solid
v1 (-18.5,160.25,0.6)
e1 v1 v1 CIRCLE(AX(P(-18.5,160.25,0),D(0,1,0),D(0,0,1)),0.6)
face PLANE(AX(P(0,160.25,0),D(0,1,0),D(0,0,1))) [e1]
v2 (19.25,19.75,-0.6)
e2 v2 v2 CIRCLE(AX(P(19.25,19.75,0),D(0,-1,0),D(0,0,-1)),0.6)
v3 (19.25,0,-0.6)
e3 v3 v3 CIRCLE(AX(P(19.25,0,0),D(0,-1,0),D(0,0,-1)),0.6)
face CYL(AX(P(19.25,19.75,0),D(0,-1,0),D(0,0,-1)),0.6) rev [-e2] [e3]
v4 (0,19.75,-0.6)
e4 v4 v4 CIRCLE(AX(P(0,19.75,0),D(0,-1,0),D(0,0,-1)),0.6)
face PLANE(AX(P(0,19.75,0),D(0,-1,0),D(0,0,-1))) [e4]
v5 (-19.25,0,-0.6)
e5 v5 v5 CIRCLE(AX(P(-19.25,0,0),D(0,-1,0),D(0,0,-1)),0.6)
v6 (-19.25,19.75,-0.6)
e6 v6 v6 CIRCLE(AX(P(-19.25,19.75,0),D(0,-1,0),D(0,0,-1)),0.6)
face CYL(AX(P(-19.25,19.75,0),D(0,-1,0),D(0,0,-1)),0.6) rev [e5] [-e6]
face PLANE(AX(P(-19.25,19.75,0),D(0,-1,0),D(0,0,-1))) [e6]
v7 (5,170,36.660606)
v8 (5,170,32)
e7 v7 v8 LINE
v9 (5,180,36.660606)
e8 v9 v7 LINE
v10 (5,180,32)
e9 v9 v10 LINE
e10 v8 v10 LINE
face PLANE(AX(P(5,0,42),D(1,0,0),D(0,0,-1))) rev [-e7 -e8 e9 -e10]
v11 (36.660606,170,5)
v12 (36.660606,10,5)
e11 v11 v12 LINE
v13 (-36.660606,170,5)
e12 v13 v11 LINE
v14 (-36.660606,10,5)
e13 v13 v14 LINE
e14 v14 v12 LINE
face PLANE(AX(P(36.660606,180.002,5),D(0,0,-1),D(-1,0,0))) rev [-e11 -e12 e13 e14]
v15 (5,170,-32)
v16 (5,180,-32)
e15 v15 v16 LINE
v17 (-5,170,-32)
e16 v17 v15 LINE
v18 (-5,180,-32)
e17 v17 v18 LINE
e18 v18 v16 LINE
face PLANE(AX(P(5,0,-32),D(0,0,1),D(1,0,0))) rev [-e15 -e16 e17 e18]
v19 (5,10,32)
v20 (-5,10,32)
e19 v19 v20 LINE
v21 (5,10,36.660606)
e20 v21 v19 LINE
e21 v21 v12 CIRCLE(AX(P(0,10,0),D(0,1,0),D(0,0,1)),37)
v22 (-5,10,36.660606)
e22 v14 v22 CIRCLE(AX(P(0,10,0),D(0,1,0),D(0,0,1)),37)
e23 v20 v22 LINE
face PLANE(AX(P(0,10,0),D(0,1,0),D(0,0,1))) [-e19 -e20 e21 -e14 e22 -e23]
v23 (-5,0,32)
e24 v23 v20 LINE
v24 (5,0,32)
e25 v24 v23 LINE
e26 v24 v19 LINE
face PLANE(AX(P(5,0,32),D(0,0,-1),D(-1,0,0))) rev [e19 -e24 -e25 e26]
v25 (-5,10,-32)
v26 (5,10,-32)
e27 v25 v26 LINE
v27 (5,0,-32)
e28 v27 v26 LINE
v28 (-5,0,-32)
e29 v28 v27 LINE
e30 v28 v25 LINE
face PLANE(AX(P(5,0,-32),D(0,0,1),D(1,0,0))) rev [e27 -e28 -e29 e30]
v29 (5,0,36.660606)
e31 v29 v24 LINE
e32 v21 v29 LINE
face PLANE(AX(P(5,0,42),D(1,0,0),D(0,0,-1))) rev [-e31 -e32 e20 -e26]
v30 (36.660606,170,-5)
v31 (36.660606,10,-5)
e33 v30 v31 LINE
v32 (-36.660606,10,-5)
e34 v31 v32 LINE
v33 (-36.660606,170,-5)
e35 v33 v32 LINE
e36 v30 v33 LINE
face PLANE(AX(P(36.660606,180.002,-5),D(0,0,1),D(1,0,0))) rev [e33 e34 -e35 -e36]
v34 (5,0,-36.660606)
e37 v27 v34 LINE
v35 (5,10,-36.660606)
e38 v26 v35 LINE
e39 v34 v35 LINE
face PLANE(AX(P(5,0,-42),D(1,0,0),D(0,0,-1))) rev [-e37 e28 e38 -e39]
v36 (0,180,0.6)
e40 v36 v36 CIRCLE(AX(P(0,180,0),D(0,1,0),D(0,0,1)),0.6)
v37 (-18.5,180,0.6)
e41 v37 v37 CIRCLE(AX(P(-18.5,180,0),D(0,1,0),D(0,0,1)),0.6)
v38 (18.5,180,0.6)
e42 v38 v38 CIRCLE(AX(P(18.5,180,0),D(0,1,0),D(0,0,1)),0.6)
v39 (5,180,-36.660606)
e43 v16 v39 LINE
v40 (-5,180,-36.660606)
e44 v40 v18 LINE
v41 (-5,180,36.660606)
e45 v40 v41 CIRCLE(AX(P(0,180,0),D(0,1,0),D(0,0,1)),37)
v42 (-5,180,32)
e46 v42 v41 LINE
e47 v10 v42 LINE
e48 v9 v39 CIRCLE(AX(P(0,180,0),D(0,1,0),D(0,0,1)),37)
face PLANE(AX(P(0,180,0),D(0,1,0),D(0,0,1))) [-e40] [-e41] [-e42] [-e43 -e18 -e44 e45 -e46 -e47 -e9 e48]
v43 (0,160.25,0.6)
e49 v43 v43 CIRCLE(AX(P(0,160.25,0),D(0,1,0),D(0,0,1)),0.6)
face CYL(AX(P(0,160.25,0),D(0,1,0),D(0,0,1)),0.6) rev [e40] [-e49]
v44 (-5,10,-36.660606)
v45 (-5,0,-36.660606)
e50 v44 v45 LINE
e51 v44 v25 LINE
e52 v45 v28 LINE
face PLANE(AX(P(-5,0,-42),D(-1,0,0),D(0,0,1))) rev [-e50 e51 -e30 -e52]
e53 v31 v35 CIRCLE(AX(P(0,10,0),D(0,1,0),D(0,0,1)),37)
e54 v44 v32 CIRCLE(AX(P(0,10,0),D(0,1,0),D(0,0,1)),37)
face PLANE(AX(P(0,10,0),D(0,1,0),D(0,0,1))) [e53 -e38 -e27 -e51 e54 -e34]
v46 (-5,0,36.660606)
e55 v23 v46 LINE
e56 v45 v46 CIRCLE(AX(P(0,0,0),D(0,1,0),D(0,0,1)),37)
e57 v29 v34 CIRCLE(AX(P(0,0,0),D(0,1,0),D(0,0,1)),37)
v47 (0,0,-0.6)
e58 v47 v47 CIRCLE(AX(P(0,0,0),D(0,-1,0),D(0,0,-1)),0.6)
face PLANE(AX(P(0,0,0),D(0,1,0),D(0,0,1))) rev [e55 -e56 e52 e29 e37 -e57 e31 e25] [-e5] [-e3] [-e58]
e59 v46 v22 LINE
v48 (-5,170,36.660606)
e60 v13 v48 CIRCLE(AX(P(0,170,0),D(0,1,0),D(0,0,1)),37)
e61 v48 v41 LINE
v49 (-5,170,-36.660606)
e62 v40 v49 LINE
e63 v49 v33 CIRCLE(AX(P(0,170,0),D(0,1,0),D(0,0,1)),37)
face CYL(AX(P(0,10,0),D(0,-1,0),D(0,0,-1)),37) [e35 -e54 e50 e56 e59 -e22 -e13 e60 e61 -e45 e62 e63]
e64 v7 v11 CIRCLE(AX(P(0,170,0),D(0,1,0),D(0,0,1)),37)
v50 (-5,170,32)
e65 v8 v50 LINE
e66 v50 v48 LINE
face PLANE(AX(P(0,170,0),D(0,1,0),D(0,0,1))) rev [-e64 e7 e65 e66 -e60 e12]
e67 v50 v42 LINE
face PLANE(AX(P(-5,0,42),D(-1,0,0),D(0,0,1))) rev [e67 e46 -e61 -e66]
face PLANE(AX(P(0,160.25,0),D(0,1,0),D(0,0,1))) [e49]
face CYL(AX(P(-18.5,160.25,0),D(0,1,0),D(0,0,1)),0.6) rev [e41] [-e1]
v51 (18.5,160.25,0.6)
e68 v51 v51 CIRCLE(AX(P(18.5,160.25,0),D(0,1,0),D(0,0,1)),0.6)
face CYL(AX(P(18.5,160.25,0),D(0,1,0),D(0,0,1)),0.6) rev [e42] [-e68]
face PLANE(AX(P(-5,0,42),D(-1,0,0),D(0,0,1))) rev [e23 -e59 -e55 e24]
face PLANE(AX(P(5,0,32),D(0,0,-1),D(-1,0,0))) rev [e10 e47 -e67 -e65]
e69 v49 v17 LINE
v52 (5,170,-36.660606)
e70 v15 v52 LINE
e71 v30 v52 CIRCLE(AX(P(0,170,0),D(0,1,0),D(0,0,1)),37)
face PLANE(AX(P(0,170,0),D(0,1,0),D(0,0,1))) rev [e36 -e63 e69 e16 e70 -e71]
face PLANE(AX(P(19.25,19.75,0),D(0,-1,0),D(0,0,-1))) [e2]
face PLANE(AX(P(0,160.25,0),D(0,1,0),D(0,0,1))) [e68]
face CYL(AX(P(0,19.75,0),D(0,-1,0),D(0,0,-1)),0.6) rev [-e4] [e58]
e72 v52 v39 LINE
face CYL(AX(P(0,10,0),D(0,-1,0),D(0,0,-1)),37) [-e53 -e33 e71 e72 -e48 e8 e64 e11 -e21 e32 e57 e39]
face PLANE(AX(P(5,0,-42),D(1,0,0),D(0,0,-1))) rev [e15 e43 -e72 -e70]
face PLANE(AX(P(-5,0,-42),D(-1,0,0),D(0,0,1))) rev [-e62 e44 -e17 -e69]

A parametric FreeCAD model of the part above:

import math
import FreeCAD as App
import Part
import Sketcher

doc = App.newDocument("Part")
body = doc.addObject("PartDesign::Body", "Body")

sketch1 = body.newObject("Sketcher::SketchObject", "Sketch")
sketch1.AttachmentSupport = (doc.getObject("XZ_Plane"), [""])
sketch1.MapMode = "FlatFace"
sketch1.addGeometry(Part.Circle(App.Vector(0, 0, 0), App.Vector(0, 0, 1), 37), False)
sketch1.addConstraint([
    Sketcher.Constraint("Coincident", 0, 3, -1, 1),
    Sketcher.Constraint("Diameter", 0, 74.0),
])
pad1 = body.newObject("PartDesign::Pad", "Pad")
pad1.Profile = sketch1
pad1.Length = 10
pad1.Reversed = True
body2 = doc.addObject("PartDesign::Body", "Body001")
body2.AllowCompound = True

sketch2 = body2.newObject("Sketcher::SketchObject", "Sketch001")
sketch2.AttachmentSupport = (doc.getObject("XZ_Plane001"), [""])
sketch2.MapMode = "FlatFace"
sketch2.AttachmentOffset = App.Placement(App.Vector(0, 0, -180), App.Rotation())
sketch2.addGeometry(Part.Circle(App.Vector(0, 0, 0), App.Vector(0, 0, 1), 37), False)
sketch2.addConstraint([
    Sketcher.Constraint("Coincident", 0, 3, -1, 1),
    Sketcher.Constraint("Diameter", 0, 74.0),
])
pad2 = body2.newObject("PartDesign::Pad", "Pad001")
pad2.Profile = sketch2
pad2.Length = 10
doc.recompute()

boolean = body2.newObject("PartDesign::Boolean", "Boolean")
boolean.Type = "Fuse"
boolean.addObjects([body])

sketch3 = body2.newObject("Sketcher::SketchObject", "Sketch002")
sketch3.AttachmentSupport = (doc.getObject("XZ_Plane001"), [""])
sketch3.MapMode = "FlatFace"
sketch3.AttachmentOffset = App.Placement(App.Vector(0, 0, -10), App.Rotation())
sketch3.addGeometry([
    Part.LineSegment(App.Vector(37, -5, 0), App.Vector(-37, -5, 0)),
    Part.ArcOfCircle(Part.Circle(App.Vector(0, 0, 0), App.Vector(0, 0, 1), 37), math.radians(172.23), math.radians(187.77)),
    Part.LineSegment(App.Vector(-37, 5, 0), App.Vector(37, 5, 0)),
    Part.ArcOfCircle(Part.Circle(App.Vector(0, 0, 0), App.Vector(0, 0, 1), 37), math.radians(-7.77), math.radians(7.77)),
], False)
sketch3.addConstraint([
    Sketcher.Constraint("Coincident", 0, 2, 1, 2),
    Sketcher.Constraint("Coincident", 1, 1, 2, 1),
    Sketcher.Constraint("Coincident", 2, 2, 3, 2),
    Sketcher.Constraint("Coincident", 3, 1, 0, 1),
    Sketcher.Constraint("Horizontal", 0),
    Sketcher.Constraint("Horizontal", 2),
    Sketcher.Constraint("Coincident", 1, 3, -1, 1),
    Sketcher.Constraint("Coincident", 3, 3, -1, 1),
    Sketcher.Constraint("Equal", 1, 3),
    Sketcher.Constraint("Vertical", 0, 2, 1, 1),
    Sketcher.Constraint("Radius", 1, 37.0),
    Sketcher.Constraint("DistanceY", 0, 2, -1, 1, 5.0),
])
pad3 = body2.newObject("PartDesign::Pad", "Pad002")
pad3.Profile = sketch3
pad3.Type = "UpToFirst"
pad3.Reversed = True

sketch4 = body2.newObject("Sketcher::SketchObject", "Sketch003")
sketch4.AttachmentSupport = (doc.getObject("XZ_Plane001"), [""])
sketch4.MapMode = "FlatFace"
sketch4.AttachmentOffset = App.Placement(App.Vector(0, 0, -180), App.Rotation())
sketch4.addGeometry([
    Part.LineSegment(App.Vector(-5, -42, 0), App.Vector(-5, -32, 0)),
    Part.LineSegment(App.Vector(-5, -32, 0), App.Vector(5, -32, 0)),
    Part.LineSegment(App.Vector(5, -32, 0), App.Vector(5, -42, 0)),
    Part.LineSegment(App.Vector(5, -42, 0), App.Vector(-5, -42, 0)),
    Part.LineSegment(App.Vector(-5, 32, 0), App.Vector(-5, 42, 0)),
    Part.LineSegment(App.Vector(-5, 42, 0), App.Vector(5, 42, 0)),
    Part.LineSegment(App.Vector(5, 42, 0), App.Vector(5, 32, 0)),
    Part.LineSegment(App.Vector(5, 32, 0), App.Vector(-5, 32, 0)),
], False)
sketch4.addConstraint([
    Sketcher.Constraint("Coincident", 0, 2, 1, 1),
    Sketcher.Constraint("Coincident", 1, 2, 2, 1),
    Sketcher.Constraint("Coincident", 2, 2, 3, 1),
    Sketcher.Constraint("Coincident", 3, 2, 0, 1),
    Sketcher.Constraint("Coincident", 4, 2, 5, 1),
    Sketcher.Constraint("Coincident", 5, 2, 6, 1),
    Sketcher.Constraint("Coincident", 6, 2, 7, 1),
    Sketcher.Constraint("Coincident", 7, 2, 4, 1),
    Sketcher.Constraint("Vertical", 0),
    Sketcher.Constraint("Horizontal", 1),
    Sketcher.Constraint("Vertical", 2),
    Sketcher.Constraint("Horizontal", 3),
    Sketcher.Constraint("Vertical", 4),
    Sketcher.Constraint("Horizontal", 5),
    Sketcher.Constraint("Vertical", 6),
    Sketcher.Constraint("Horizontal", 7),
    Sketcher.Constraint("Symmetric", 2, 2, 4, 2, -1, 1),
    Sketcher.Constraint("Symmetric", 0, 2, 6, 2, -1, 1),
    Sketcher.Constraint("Vertical", 3, 2, 4, 2),
    Sketcher.Constraint("Equal", 7, 0),
    Sketcher.Constraint("DistanceX", 1, 1, 1, 2, 10.0),
    Sketcher.Constraint("DistanceY", 0, 2, -1, 1, 32.0),
])
pocket1 = body2.newObject("PartDesign::Pocket", "Pocket")
pocket1.Profile = sketch4
pocket1.Type = "ThroughAll"
pocket1.Reversed = True

sketch5 = body2.newObject("Sketcher::SketchObject", "Sketch004")
sketch5.AttachmentSupport = (doc.getObject("XZ_Plane001"), [""])
sketch5.MapMode = "FlatFace"
sketch5.AttachmentOffset = App.Placement(App.Vector(0, 0, -180), App.Rotation())
sketch5.addGeometry([
    Part.Circle(App.Vector(-18.5, 0, 0), App.Vector(0, 0, 1), 0.6),
    Part.Circle(App.Vector(0, 0, 0), App.Vector(0, 0, 1), 0.6),
    Part.Circle(App.Vector(18.5, 0, 0), App.Vector(0, 0, 1), 0.6),
], False)
sketch5.addConstraint([
    Sketcher.Constraint("Coincident", 1, 3, -1, 1),
    Sketcher.Constraint("Equal", 0, 1),
    Sketcher.Constraint("Equal", 1, 2),
    Sketcher.Constraint("Symmetric", 0, 3, 2, 3, -1, 1),
    Sketcher.Constraint("PointOnObject", 0, 3, -1),
    Sketcher.Constraint("Diameter", 0, 1.2),
    Sketcher.Constraint("DistanceX", 0, 3, 2, 3, 37.0),
])
pocket2 = body2.newObject("PartDesign::Pocket", "Pocket001")
pocket2.Profile = sketch5
pocket2.Length = 19.75
pocket2.Reversed = True

sketch6 = body2.newObject("Sketcher::SketchObject", "Sketch005")
sketch6.AttachmentSupport = (doc.getObject("XZ_Plane001"), [""])
sketch6.MapMode = "FlatFace"
sketch6.addGeometry([
    Part.Circle(App.Vector(-19.2, 0, 0), App.Vector(0, 0, 1), 0.6),
    Part.Circle(App.Vector(0, 0, 0), App.Vector(0, 0, 1), 0.6),
    Part.Circle(App.Vector(19.2, 0, 0), App.Vector(0, 0, 1), 0.6),
], False)
sketch6.addConstraint([
    Sketcher.Constraint("Coincident", 1, 3, -1, 1),
    Sketcher.Constraint("Equal", 0, 1),
    Sketcher.Constraint("Equal", 1, 2),
    Sketcher.Constraint("Symmetric", 0, 3, 2, 3, -1, 1),
    Sketcher.Constraint("PointOnObject", 0, 3, -1),
    Sketcher.Constraint("Diameter", 0, 1.2),
    Sketcher.Constraint("DistanceX", 0, 3, 2, 3, 38.5),
])
pocket3 = body2.newObject("PartDesign::Pocket", "Pocket002")
pocket3.Profile = sketch6
pocket3.Length = 19.75

doc.recompute()
